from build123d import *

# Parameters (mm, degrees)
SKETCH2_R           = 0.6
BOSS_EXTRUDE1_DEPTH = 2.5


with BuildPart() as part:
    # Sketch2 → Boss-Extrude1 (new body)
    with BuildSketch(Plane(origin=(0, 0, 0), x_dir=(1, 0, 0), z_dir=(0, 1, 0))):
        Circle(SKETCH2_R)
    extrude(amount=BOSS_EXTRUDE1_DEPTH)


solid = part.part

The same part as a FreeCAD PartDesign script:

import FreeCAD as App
import Part
import Sketcher
Q = App.Units.Quantity

doc = App.newDocument("Part")
params = doc.addObject("Spreadsheet::Sheet", "Params")
for row, (alias, value) in enumerate([
    ("sketch1_diameter", "1.2 mm"),
    ("pad1_length", "2.5 mm"),
], start=1):
    params.set(f"A{row}", alias)
    params.set(f"B{row}", "=" + value)
    params.setAlias(f"B{row}", alias)

body = doc.addObject("PartDesign::Body", "Body")

sketch1 = body.newObject("Sketcher::SketchObject", "Sketch")
sketch1.AttachmentSupport = (doc.getObject("XZ_Plane"), [""])
sketch1.MapMode = "FlatFace"
sketch1.addGeometry(Part.Circle(App.Vector(0, 0, 0), App.Vector(0, 0, 1), 0.6), False)
sketch1.addConstraint([
    Sketcher.Constraint("Coincident", 0, 3, -1, 1),
    Sketcher.Constraint("Diameter", 0, Q("1.2 mm")),
])
sketch1.setExpression("Constraints[1]", "Params.sketch1_diameter")
pad1 = body.newObject("PartDesign::Pad", "Pad")
pad1.Profile = sketch1
pad1.setExpression("Length", "Params.pad1_length")
pad1.Reversed = True

doc.recompute()
